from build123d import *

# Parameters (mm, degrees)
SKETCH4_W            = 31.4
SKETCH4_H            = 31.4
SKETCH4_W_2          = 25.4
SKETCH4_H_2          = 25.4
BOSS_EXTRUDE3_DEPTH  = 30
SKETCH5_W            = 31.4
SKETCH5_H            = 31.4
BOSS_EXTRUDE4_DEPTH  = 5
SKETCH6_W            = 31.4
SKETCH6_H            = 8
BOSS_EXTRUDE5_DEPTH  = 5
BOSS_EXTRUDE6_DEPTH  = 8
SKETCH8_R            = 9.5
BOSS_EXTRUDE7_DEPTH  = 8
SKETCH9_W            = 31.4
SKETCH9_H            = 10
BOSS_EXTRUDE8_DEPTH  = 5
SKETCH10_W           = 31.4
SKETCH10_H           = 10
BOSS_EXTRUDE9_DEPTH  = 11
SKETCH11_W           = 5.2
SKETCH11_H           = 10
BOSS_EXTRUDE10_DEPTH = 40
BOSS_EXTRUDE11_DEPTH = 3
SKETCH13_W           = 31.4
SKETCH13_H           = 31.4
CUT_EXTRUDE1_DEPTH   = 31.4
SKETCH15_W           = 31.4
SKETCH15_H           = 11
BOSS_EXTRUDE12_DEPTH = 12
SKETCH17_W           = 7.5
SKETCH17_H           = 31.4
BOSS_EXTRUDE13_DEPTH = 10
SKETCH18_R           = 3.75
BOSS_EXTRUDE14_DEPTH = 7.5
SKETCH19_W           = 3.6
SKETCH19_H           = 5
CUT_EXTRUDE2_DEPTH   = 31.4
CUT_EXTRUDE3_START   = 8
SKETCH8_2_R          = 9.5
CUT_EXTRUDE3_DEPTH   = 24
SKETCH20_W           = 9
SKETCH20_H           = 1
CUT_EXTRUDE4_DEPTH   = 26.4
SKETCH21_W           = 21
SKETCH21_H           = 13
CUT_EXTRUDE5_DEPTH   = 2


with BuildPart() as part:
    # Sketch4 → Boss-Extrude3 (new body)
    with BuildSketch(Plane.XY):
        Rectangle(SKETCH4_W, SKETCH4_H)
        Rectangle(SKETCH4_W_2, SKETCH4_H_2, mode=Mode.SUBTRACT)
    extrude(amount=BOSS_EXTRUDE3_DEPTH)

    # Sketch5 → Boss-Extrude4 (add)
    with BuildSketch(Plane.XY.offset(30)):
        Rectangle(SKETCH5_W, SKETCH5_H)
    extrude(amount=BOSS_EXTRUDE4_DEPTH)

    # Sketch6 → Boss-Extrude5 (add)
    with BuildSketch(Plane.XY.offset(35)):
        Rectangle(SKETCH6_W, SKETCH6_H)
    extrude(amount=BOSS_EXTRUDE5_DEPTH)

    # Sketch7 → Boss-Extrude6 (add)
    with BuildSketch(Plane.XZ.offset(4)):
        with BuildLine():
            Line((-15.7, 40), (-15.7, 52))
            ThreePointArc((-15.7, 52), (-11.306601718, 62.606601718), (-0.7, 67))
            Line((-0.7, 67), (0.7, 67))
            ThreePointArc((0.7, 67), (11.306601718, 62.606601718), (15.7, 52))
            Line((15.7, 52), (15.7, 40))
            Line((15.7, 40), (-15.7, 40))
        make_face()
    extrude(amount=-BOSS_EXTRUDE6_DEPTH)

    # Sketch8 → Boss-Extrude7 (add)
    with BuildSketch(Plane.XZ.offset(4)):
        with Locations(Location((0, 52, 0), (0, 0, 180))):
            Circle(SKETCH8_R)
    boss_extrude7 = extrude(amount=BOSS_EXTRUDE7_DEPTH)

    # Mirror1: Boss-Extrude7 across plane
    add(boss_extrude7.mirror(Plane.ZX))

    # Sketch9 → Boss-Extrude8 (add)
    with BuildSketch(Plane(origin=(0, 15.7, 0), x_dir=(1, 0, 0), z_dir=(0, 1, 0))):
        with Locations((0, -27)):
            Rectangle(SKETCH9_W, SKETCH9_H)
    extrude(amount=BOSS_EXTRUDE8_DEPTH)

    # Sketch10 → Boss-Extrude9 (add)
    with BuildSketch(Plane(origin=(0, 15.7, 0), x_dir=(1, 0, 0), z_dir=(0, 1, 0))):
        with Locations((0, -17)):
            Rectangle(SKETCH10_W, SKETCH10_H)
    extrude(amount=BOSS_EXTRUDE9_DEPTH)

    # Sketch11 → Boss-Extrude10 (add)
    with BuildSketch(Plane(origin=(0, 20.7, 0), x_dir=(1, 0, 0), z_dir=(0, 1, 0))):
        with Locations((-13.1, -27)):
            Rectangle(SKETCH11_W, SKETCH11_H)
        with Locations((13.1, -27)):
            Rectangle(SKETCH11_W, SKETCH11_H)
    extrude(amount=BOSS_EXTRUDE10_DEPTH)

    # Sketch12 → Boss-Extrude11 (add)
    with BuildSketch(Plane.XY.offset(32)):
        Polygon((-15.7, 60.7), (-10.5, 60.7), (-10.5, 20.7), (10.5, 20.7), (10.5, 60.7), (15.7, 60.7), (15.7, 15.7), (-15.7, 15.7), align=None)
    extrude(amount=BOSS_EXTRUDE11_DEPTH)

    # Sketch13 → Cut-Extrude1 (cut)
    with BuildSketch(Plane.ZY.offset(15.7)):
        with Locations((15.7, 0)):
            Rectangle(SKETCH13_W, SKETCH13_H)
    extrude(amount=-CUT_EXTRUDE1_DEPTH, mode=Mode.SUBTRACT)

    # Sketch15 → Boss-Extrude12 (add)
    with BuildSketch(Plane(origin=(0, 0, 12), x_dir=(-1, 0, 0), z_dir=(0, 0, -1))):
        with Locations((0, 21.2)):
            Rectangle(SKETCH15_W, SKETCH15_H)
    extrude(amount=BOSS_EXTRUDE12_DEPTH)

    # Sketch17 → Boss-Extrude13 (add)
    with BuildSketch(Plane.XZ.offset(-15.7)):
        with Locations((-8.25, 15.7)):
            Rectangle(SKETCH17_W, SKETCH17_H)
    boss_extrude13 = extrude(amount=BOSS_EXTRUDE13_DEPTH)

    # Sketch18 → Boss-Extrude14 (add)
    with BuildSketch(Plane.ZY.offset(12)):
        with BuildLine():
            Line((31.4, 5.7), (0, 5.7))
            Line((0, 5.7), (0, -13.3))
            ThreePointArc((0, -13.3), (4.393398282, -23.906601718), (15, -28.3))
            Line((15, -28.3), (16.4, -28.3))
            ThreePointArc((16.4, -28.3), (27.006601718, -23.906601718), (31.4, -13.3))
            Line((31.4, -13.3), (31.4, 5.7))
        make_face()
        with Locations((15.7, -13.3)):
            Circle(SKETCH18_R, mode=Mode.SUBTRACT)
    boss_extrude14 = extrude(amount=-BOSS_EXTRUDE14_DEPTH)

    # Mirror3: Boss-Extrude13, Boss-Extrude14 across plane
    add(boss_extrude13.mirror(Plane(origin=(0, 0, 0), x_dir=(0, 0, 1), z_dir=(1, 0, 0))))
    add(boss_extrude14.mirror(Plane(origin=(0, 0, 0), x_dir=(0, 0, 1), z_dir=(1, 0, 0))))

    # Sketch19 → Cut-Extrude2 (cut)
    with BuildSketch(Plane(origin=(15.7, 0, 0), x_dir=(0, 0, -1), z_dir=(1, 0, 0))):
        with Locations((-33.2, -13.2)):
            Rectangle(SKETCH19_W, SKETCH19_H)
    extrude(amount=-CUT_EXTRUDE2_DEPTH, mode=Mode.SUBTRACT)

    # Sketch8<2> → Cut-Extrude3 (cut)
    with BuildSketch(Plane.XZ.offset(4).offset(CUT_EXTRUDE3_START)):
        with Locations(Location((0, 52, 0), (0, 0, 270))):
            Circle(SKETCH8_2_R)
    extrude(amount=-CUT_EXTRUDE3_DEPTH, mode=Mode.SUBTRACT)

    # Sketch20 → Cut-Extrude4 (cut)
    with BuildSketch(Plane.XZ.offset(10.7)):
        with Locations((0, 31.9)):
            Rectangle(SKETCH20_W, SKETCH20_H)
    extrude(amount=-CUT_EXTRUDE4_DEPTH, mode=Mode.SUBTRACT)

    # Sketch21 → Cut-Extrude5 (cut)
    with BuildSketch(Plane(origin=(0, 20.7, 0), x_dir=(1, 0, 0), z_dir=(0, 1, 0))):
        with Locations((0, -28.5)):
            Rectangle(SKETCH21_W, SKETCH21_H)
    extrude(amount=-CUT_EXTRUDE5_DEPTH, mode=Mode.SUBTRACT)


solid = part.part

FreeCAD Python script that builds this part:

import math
import FreeCAD as App
import Part
import Sketcher

V = App.Vector


def add_polygon(sketch, points):
    """Adds a closed chain of lines whose ends are joined by coincident constraints."""
    first, n = sketch.GeometryCount, len(points)
    for a, b in zip(points, points[1:] + points[:1]):
        sketch.addGeometry(Part.LineSegment(App.Vector(*a, 0), App.Vector(*b, 0)), False)
    for i in range(n):
        sketch.addConstraint(Sketcher.Constraint("Coincident", first + i, 2, first + (i + 1) % n, 1))

doc = App.newDocument("Part")
body = doc.addObject("PartDesign::Body", "Body")

sketch1 = body.newObject("Sketcher::SketchObject", "Sketch")
sketch1.AttachmentSupport = (doc.getObject("XY_Plane"), [""])
sketch1.MapMode = "FlatFace"
add_polygon(sketch1, [(-16, 16), (-16, -16), (16, -16), (16, 16)])
add_polygon(sketch1, [(13, -13), (-13, -13), (-13, 13), (13, 13)])
sketch1.addConstraint(Sketcher.Constraint("Vertical", 0))
sketch1.addConstraint(Sketcher.Constraint("Horizontal", 1))
sketch1.addConstraint(Sketcher.Constraint("Vertical", 2))
sketch1.addConstraint(Sketcher.Constraint("Horizontal", 3))
sketch1.addConstraint(Sketcher.Constraint("Horizontal", 4))
sketch1.addConstraint(Sketcher.Constraint("Vertical", 5))
sketch1.addConstraint(Sketcher.Constraint("Horizontal", 6))
sketch1.addConstraint(Sketcher.Constraint("Vertical", 7))
sketch1.addConstraint(Sketcher.Constraint("Symmetric", 0, 2, 2, 2, -1, 1))
sketch1.addConstraint(Sketcher.Constraint("Symmetric", 4, 2, 6, 2, -1, 1))
sketch1.addConstraint(Sketcher.Constraint("Equal", 3, 0))
sketch1.addConstraint(Sketcher.Constraint("Equal", 6, 5))
sketch1.addConstraint(Sketcher.Constraint("DistanceX", 1, 1, 1, 2, 31.4))
sketch1.addConstraint(Sketcher.Constraint("DistanceX", 4, 2, 4, 1, 25.4))
pad1 = body.newObject("PartDesign::Pad", "Pad")
pad1.Profile = sketch1
pad1.Length = 30

sketch2 = body.newObject("Sketcher::SketchObject", "Sketch001")
sketch2.AttachmentSupport = (doc.getObject("XY_Plane"), [""])
sketch2.MapMode = "FlatFace"
sketch2.AttachmentOffset = App.Placement(V(0, 0, 30), App.Rotation())
add_polygon(sketch2, [(-16, 16), (-16, -16), (16, -16), (16, 16)])
sketch2.addConstraint(Sketcher.Constraint("Vertical", 0))
sketch2.addConstraint(Sketcher.Constraint("Horizontal", 1))
sketch2.addConstraint(Sketcher.Constraint("Vertical", 2))
sketch2.addConstraint(Sketcher.Constraint("Horizontal", 3))
sketch2.addConstraint(Sketcher.Constraint("Symmetric", 0, 2, 2, 2, -1, 1))
sketch2.addConstraint(Sketcher.Constraint("Equal", 3, 0))
sketch2.addConstraint(Sketcher.Constraint("DistanceX", 1, 1, 1, 2, 31.4))
pad2 = body.newObject("PartDesign::Pad", "Pad001")
pad2.Profile = sketch2
pad2.Length = 5

sketch3 = body.newObject("Sketcher::SketchObject", "Sketch002")
sketch3.AttachmentSupport = (doc.getObject("XY_Plane"), [""])
sketch3.MapMode = "FlatFace"
sketch3.AttachmentOffset = App.Placement(V(0, 0, 35), App.Rotation())
add_polygon(sketch3, [(-16, 4), (-16, -4), (16, -4), (16, 4)])
sketch3.addConstraint(Sketcher.Constraint("Vertical", 0))
sketch3.addConstraint(Sketcher.Constraint("Horizontal", 1))
sketch3.addConstraint(Sketcher.Constraint("Vertical", 2))
sketch3.addConstraint(Sketcher.Constraint("Horizontal", 3))
sketch3.addConstraint(Sketcher.Constraint("Symmetric", 0, 2, 2, 2, -1, 1))
sketch3.addConstraint(Sketcher.Constraint("DistanceY", 0, 2, 0, 1, 8.0))
sketch3.addConstraint(Sketcher.Constraint("DistanceX", 1, 1, 1, 2, 31.4))
pad3 = body.newObject("PartDesign::Pad", "Pad002")
pad3.Profile = sketch3
pad3.Length = 5

sketch4 = body.newObject("Sketcher::SketchObject", "Sketch003")
sketch4.AttachmentSupport = (doc.getObject("XZ_Plane"), [""])
sketch4.MapMode = "FlatFace"
sketch4.AttachmentOffset = App.Placement(V(0, 0, 4), App.Rotation())
sketch4.addGeometry(Part.LineSegment(V(-15.7, 52, 0), V(-15.7, 40, 0)), False)
sketch4.addGeometry(Part.LineSegment(V(-15.7, 40, 0), V(15.7, 40, 0)), False)
sketch4.addGeometry(Part.LineSegment(V(15.7, 40, 0), V(15.7, 52, 0)), False)
sketch4.addGeometry(Part.ArcOfCircle(Part.Circle(V(0.7, 52, 0), V(0, 0, 1), 15), math.radians(0), math.radians(90)), False)
sketch4.addGeometry(Part.LineSegment(V(0.7, 67, 0), V(-0.7, 67, 0)), False)
sketch4.addGeometry(Part.ArcOfCircle(Part.Circle(V(-0.7, 52, 0), V(0, 0, 1), 15), math.radians(90), math.radians(180)), False)
sketch4.addConstraint(Sketcher.Constraint("Coincident", 0, 2, 1, 1))
sketch4.addConstraint(Sketcher.Constraint("Coincident", 1, 2, 2, 1))
sketch4.addConstraint(Sketcher.Constraint("Tangent", 2, 2, 3, 1))
sketch4.addConstraint(Sketcher.Constraint("Tangent", 3, 2, 4, 1))
sketch4.addConstraint(Sketcher.Constraint("Tangent", 4, 2, 5, 1))
sketch4.addConstraint(Sketcher.Constraint("Tangent", 5, 2, 0, 1))
sketch4.addConstraint(Sketcher.Constraint("Vertical", 0))
sketch4.addConstraint(Sketcher.Constraint("Horizontal", 1))
sketch4.addConstraint(Sketcher.Constraint("Vertical", 2))
sketch4.addConstraint(Sketcher.Constraint("Horizontal", 4))
sketch4.addConstraint(Sketcher.Constraint("Equal", 3, 5))
sketch4.addConstraint(Sketcher.Constraint("Radius", 3, 15.0))
sketch4.addConstraint(Sketcher.Constraint("DistanceY", 0, 2, 0, 1, 12.0))
sketch4.addConstraint(Sketcher.Constraint("DistanceX", 1, 1, 1, 2, 31.4))
sketch4.addConstraint(Sketcher.Constraint("DistanceY", -1, 1, 3, 3, 52.0))
sketch4.addConstraint(Sketcher.Constraint("DistanceX", -1, 1, 3, 3, 0.7))
pad4 = body.newObject("PartDesign::Pad", "Pad003")
pad4.Profile = sketch4
pad4.Length = 8
pad4.Reversed = True

sketch5 = body.newObject("Sketcher::SketchObject", "Sketch004")
sketch5.AttachmentSupport = (doc.getObject("XZ_Plane"), [""])
sketch5.MapMode = "FlatFace"
sketch5.AttachmentOffset = App.Placement(V(0, 0, 4), App.Rotation())
sketch5.addGeometry(Part.Circle(V(0, 52, 0), V(0, 0, 1), 10), False)
sketch5.addConstraint(Sketcher.Constraint("PointOnObject", 0, 3, -2))
sketch5.addConstraint(Sketcher.Constraint("Diameter", 0, 19.0))
sketch5.addConstraint(Sketcher.Constraint("DistanceY", -1, 1, 0, 3, 52.0))
pad5 = body.newObject("PartDesign::Pad", "Pad004")
pad5.Profile = sketch5
pad5.Length = 8
doc.recompute()

mirrored = body.newObject("PartDesign::Mirrored", "Mirrored")
mirrored.Originals = [pad5]
mirrored.MirrorPlane = (doc.getObject("XZ_Plane"), [""])
body.Tip = mirrored

sketch6 = body.newObject("Sketcher::SketchObject", "Sketch005")
sketch6.AttachmentSupport = (doc.getObject("XZ_Plane"), [""])
sketch6.MapMode = "FlatFace"
sketch6.AttachmentOffset = App.Placement(V(0, 0, -15.7), App.Rotation())
add_polygon(sketch6, [(-16, 22), (-16, 32), (16, 32), (16, 22)])
sketch6.addConstraint(Sketcher.Constraint("Vertical", 0))
sketch6.addConstraint(Sketcher.Constraint("Horizontal", 1))
sketch6.addConstraint(Sketcher.Constraint("Vertical", 2))
sketch6.addConstraint(Sketcher.Constraint("Horizontal", 3))
sketch6.addConstraint(Sketcher.Constraint("DistanceY", 0, 1, 0, 2, 10.0))
sketch6.addConstraint(Sketcher.Constraint("DistanceX", 1, 1, 1, 2, 31.4))
sketch6.addConstraint(Sketcher.Constraint("DistanceY", -1, 1, 0, 2, 32.0))
sketch6.addConstraint(Sketcher.Constraint("DistanceX", 0, 2, -1, 1, 15.7))
pad6 = body.newObject("PartDesign::Pad", "Pad005")
pad6.Profile = sketch6
pad6.Length = 5
pad6.Reversed = True

sketch7 = body.newObject("Sketcher::SketchObject", "Sketch006")
sketch7.AttachmentSupport = (doc.getObject("XZ_Plane"), [""])
sketch7.MapMode = "FlatFace"
sketch7.AttachmentOffset = App.Placement(V(0, 0, -15.7), App.Rotation())
add_polygon(sketch7, [(-16, 12), (-16, 22), (16, 22), (16, 12)])
sketch7.addConstraint(Sketcher.Constraint("Vertical", 0))
sketch7.addConstraint(Sketcher.Constraint("Horizontal", 1))
sketch7.addConstraint(Sketcher.Constraint("Vertical", 2))
sketch7.addConstraint(Sketcher.Constraint("Horizontal", 3))
sketch7.addConstraint(Sketcher.Constraint("DistanceY", 0, 1, 0, 2, 10.0))
sketch7.addConstraint(Sketcher.Constraint("DistanceX", 1, 1, 1, 2, 31.4))
sketch7.addConstraint(Sketcher.Constraint("DistanceY", -1, 1, 0, 2, 22.0))
sketch7.addConstraint(Sketcher.Constraint("DistanceX", 0, 2, -1, 1, 15.7))
pad7 = body.newObject("PartDesign::Pad", "Pad006")
pad7.Profile = sketch7
pad7.Length = 11
pad7.Reversed = True

sketch8 = body.newObject("Sketcher::SketchObject", "Sketch007")
sketch8.AttachmentSupport = (doc.getObject("XZ_Plane"), [""])
sketch8.MapMode = "FlatFace"
sketch8.AttachmentOffset = App.Placement(V(0, 0, -20.7), App.Rotation())
add_polygon(sketch8, [(-16, 22), (-16, 32), (-10, 32), (-10, 22)])
add_polygon(sketch8, [(10, 22), (10, 32), (16, 32), (16, 22)])
sketch8.addConstraint(Sketcher.Constraint("Vertical", 0))
sketch8.addConstraint(Sketcher.Constraint("Horizontal", 1))
sketch8.addConstraint(Sketcher.Constraint("Vertical", 2))
sketch8.addConstraint(Sketcher.Constraint("Horizontal", 3))
sketch8.addConstraint(Sketcher.Constraint("Vertical", 4))
sketch8.addConstraint(Sketcher.Constraint("Horizontal", 5))
sketch8.addConstraint(Sketcher.Constraint("Vertical", 6))
sketch8.addConstraint(Sketcher.Constraint("Horizontal", 7))
sketch8.addConstraint(Sketcher.Constraint("Symmetric", 1, 2, 4, 2, -2))
sketch8.addConstraint(Sketcher.Constraint("Symmetric", 3, 2, 6, 2, -2))
sketch8.addConstraint(Sketcher.Constraint("DistanceY", 0, 1, 0, 2, 10.0))
sketch8.addConstraint(Sketcher.Constraint("DistanceX", 1, 1, 1, 2, 5.2))
sketch8.addConstraint(Sketcher.Constraint("DistanceY", -1, 1, 0, 2, 32.0))
sketch8.addConstraint(Sketcher.Constraint("DistanceX", 1, 2, 4, 2, 21.0))
pad8 = body.newObject("PartDesign::Pad", "Pad007")
pad8.Profile = sketch8
pad8.Length = 40
pad8.Reversed = True

sketch9 = body.newObject("Sketcher::SketchObject", "Sketch008")
sketch9.AttachmentSupport = (doc.getObject("XY_Plane"), [""])
sketch9.MapMode = "FlatFace"
sketch9.AttachmentOffset = App.Placement(V(0, 0, 32), App.Rotation())
add_polygon(sketch9, [(-10, 61), (-16, 61), (-16, 16), (16, 16), (16, 61), (10, 61), (10, 21), (-10, 21)])
sketch9.addConstraint(Sketcher.Constraint("Horizontal", 0))
sketch9.addConstraint(Sketcher.Constraint("Vertical", 1))
sketch9.addConstraint(Sketcher.Constraint("Horizontal", 2))
sketch9.addConstraint(Sketcher.Constraint("Vertical", 3))
sketch9.addConstraint(Sketcher.Constraint("Horizontal", 4))
sketch9.addConstraint(Sketcher.Constraint("Vertical", 5))
sketch9.addConstraint(Sketcher.Constraint("Horizontal", 6))
sketch9.addConstraint(Sketcher.Constraint("Vertical", 7))
sketch9.addConstraint(Sketcher.Constraint("Symmetric", 0, 2, 3, 2, -2))
sketch9.addConstraint(Sketcher.Constraint("Equal", 0, 4))
sketch9.addConstraint(Sketcher.Constraint("DistanceX", 6, 2, 6, 1, 21.0))
sketch9.addConstraint(Sketcher.Constraint("DistanceY", 1, 2, 1, 1, 45.0))
sketch9.addConstraint(Sketcher.Constraint("DistanceY", 5, 2, 5, 1, 40.0))
sketch9.addConstraint(Sketcher.Constraint("DistanceX", 0, 2, 0, 1, 5.2))
sketch9.addConstraint(Sketcher.Constraint("DistanceY", -1, 1, 0, 2, 60.7))
pad9 = body.newObject("PartDesign::Pad", "Pad008")
pad9.Profile = sketch9
pad9.Length = 3

sketch10 = body.newObject("Sketcher::SketchObject", "Sketch009")
sketch10.AttachmentSupport = (doc.getObject("YZ_Plane"), [""])
sketch10.MapMode = "FlatFace"
sketch10.AttachmentOffset = App.Placement(V(0, 0, -15.7), App.Rotation())
add_polygon(sketch10, [(16, 0), (-16, 0), (-16, 31), (16, 31)])
sketch10.addConstraint(Sketcher.Constraint("Horizontal", 0))
sketch10.addConstraint(Sketcher.Constraint("Vertical", 1))
sketch10.addConstraint(Sketcher.Constraint("Horizontal", 2))
sketch10.addConstraint(Sketcher.Constraint("Vertical", 3))
sketch10.addConstraint(Sketcher.Constraint("Symmetric", 0, 2, 3, 2, -1, 1))
sketch10.addConstraint(Sketcher.Constraint("Equal", 2, 1))
sketch10.addConstraint(Sketcher.Constraint("DistanceX", 0, 2, 0, 1, 31.4))
pocket1 = body.newObject("PartDesign::Pocket", "Pocket")
pocket1.Profile = sketch10
pocket1.Length = 31.4
pocket1.Reversed = True

sketch11 = body.newObject("Sketcher::SketchObject", "Sketch010")
sketch11.AttachmentSupport = (doc.getObject("XY_Plane"), [""])
sketch11.MapMode = "FlatFace"
sketch11.AttachmentOffset = App.Placement(V(0, 0, 12), App.Rotation())
add_polygon(sketch11, [(16, 27), (16, 16), (-16, 16), (-16, 27)])
sketch11.addConstraint(Sketcher.Constraint("Vertical", 0))
sketch11.addConstraint(Sketcher.Constraint("Horizontal", 1))
sketch11.addConstraint(Sketcher.Constraint("Vertical", 2))
sketch11.addConstraint(Sketcher.Constraint("Horizontal", 3))
sketch11.addConstraint(Sketcher.Constraint("DistanceY", 0, 2, 0, 1, 11.0))
sketch11.addConstraint(Sketcher.Constraint("DistanceX", 1, 2, 1, 1, 31.4))
sketch11.addConstraint(Sketcher.Constraint("DistanceX", -1, 1, 0, 2, 15.7))
sketch11.addConstraint(Sketcher.Constraint("DistanceY", -1, 1, 0, 2, 15.7))
pad10 = body.newObject("PartDesign::Pad", "Pad009")
pad10.Profile = sketch11
pad10.Length = 12
pad10.Reversed = True

sketch12 = body.newObject("Sketcher::SketchObject", "Sketch011")
sketch12.AttachmentSupport = (doc.getObject("XZ_Plane"), [""])
sketch12.MapMode = "FlatFace"
sketch12.AttachmentOffset = App.Placement(V(0, 0, -15.7), App.Rotation())
add_polygon(sketch12, [(-12, 31), (-12, 0), (-4, 0), (-4, 31)])
sketch12.addConstraint(Sketcher.Constraint("Vertical", 0))
sketch12.addConstraint(Sketcher.Constraint("Horizontal", 1))
sketch12.addConstraint(Sketcher.Constraint("Vertical", 2))
sketch12.addConstraint(Sketcher.Constraint("Horizontal", 3))
sketch12.addConstraint(Sketcher.Constraint("PointOnObject", 0, 2, -1))
sketch12.addConstraint(Sketcher.Constraint("DistanceX", 1, 1, 1, 2, 7.5))
sketch12.addConstraint(Sketcher.Constraint("DistanceY", 0, 2, 0, 1, 31.4))
sketch12.addConstraint(Sketcher.Constraint("DistanceX", 0, 2, -1, 1, 12.0))
pad11 = body.newObject("PartDesign::Pad", "Pad010")
pad11.Profile = sketch12
pad11.Length = 10

sketch13 = body.newObject("Sketcher::SketchObject", "Sketch012")
sketch13.AttachmentSupport = (doc.getObject("YZ_Plane"), [""])
sketch13.MapMode = "FlatFace"
sketch13.AttachmentOffset = App.Placement(V(0, 0, -12), App.Rotation())
sketch13.addGeometry(Part.LineSegment(V(5.7, 31.4, 0), V(5.7, 0, 0)), False)
sketch13.addGeometry(Part.LineSegment(V(5.7, 0, 0), V(-13.3, 0, 0)), False)
sketch13.addGeometry(Part.ArcOfCircle(Part.Circle(V(-13.3, 15, 0), V(0, 0, 1), 15), math.radians(180), math.radians(270)), False)
sketch13.addGeometry(Part.LineSegment(V(-28.3, 15, 0), V(-28.3, 16.4, 0)), False)
sketch13.addGeometry(Part.ArcOfCircle(Part.Circle(V(-13.3, 16.4, 0), V(0, 0, 1), 15), math.radians(90), math.radians(180)), False)
sketch13.addGeometry(Part.LineSegment(V(-13.3, 31.4, 0), V(5.7, 31.4, 0)), False)
sketch13.addGeometry(Part.Circle(V(-13.3, 15.7, 0), V(0, 0, 1), 3.8), False)
sketch13.addConstraint(Sketcher.Constraint("Coincident", 0, 2, 1, 1))
sketch13.addConstraint(Sketcher.Constraint("Tangent", 1, 2, 2, 2))
sketch13.addConstraint(Sketcher.Constraint("Tangent", 2, 1, 3, 1))
sketch13.addConstraint(Sketcher.Constraint("Tangent", 3, 2, 4, 2))
sketch13.addConstraint(Sketcher.Constraint("Tangent", 4, 1, 5, 1))
sketch13.addConstraint(Sketcher.Constraint("Coincident", 5, 2, 0, 1))
sketch13.addConstraint(Sketcher.Constraint("Vertical", 0))
sketch13.addConstraint(Sketcher.Constraint("Horizontal", 1))
sketch13.addConstraint(Sketcher.Constraint("Vertical", 3))
sketch13.addConstraint(Sketcher.Constraint("Horizontal", 5))
sketch13.addConstraint(Sketcher.Constraint("Equal", 2, 4))
sketch13.addConstraint(Sketcher.Constraint("PointOnObject", 0, 2, -1))
sketch13.addConstraint(Sketcher.Constraint("Vertical", 4, 3, 6, 3))
sketch13.addConstraint(Sketcher.Constraint("Radius", 2, 15.0))
sketch13.addConstraint(Sketcher.Constraint("Diameter", 6, 7.5))
sketch13.addConstraint(Sketcher.Constraint("DistanceX", 1, 2, 1, 1, 19.0))
sketch13.addConstraint(Sketcher.Constraint("DistanceY", 0, 2, 0, 1, 31.4))
sketch13.addConstraint(Sketcher.Constraint("DistanceX", 2, 3, -1, 1, 13.3))
sketch13.addConstraint(Sketcher.Constraint("DistanceY", -1, 1, 6, 3, 15.7))
pad12 = body.newObject("PartDesign::Pad", "Pad011")
pad12.Profile = sketch13
pad12.Length = 7.5
doc.recompute()

mirrored2 = body.newObject("PartDesign::Mirrored", "Mirrored001")
mirrored2.Originals = [pad11, pad12]
mirrored2.MirrorPlane = (doc.getObject("YZ_Plane"), [""])
body.Tip = mirrored2

sketch14 = body.newObject("Sketcher::SketchObject", "Sketch013")
sketch14.AttachmentSupport = (doc.getObject("YZ_Plane"), [""])
sketch14.MapMode = "FlatFace"
sketch14.AttachmentOffset = App.Placement(V(0, 0, 15.7), App.Rotation())
add_polygon(sketch14, [(-10.7, 35), (-15.7, 35), (-15.7, 31.4), (-10.7, 31.4)])
sketch14.addConstraint(Sketcher.Constraint("Horizontal", 0))
sketch14.addConstraint(Sketcher.Constraint("Vertical", 1))
sketch14.addConstraint(Sketcher.Constraint("Horizontal", 2))
sketch14.addConstraint(Sketcher.Constraint("Vertical", 3))
sketch14.addConstraint(Sketcher.Constraint("DistanceX", 0, 2, 0, 1, 5.0))
sketch14.addConstraint(Sketcher.Constraint("DistanceY", 1, 2, 1, 1, 3.6))
sketch14.addConstraint(Sketcher.Constraint("DistanceY", -1, 1, 0, 2, 35.0))
sketch14.addConstraint(Sketcher.Constraint("DistanceX", 0, 2, -1, 1, 15.7))
pocket2 = body.newObject("PartDesign::Pocket", "Pocket001")
pocket2.Profile = sketch14
pocket2.Length = 31.4

sketch15 = body.newObject("Sketcher::SketchObject", "Sketch014")
sketch15.AttachmentSupport = (doc.getObject("XZ_Plane"), [""])
sketch15.MapMode = "FlatFace"
sketch15.AttachmentOffset = App.Placement(V(0, 0, 12), App.Rotation())
sketch15.addGeometry(Part.Circle(V(0, 52, 0), V(0, 0, 1), 10), False)
sketch15.addConstraint(Sketcher.Constraint("PointOnObject", 0, 3, -2))
sketch15.addConstraint(Sketcher.Constraint("Diameter", 0, 19.0))
sketch15.addConstraint(Sketcher.Constraint("DistanceY", -1, 1, 0, 3, 52.0))
pocket3 = body.newObject("PartDesign::Pocket", "Pocket002")
pocket3.Profile = sketch15
pocket3.Length = 24

sketch16 = body.newObject("Sketcher::SketchObject", "Sketch015")
sketch16.AttachmentSupport = (doc.getObject("XZ_Plane"), [""])
sketch16.MapMode = "FlatFace"
sketch16.AttachmentOffset = App.Placement(V(0, 0, 10.7), App.Rotation())
add_polygon(sketch16, [(-4.5, 32.4), (-4.5, 31.4), (4.5, 31.4), (4.5, 32.4)])
sketch16.addConstraint(Sketcher.Constraint("Vertical", 0))
sketch16.addConstraint(Sketcher.Constraint("Horizontal", 1))
sketch16.addConstraint(Sketcher.Constraint("Vertical", 2))
sketch16.addConstraint(Sketcher.Constraint("Horizontal", 3))
sketch16.addConstraint(Sketcher.Constraint("DistanceX", 1, 1, 1, 2, 9.0))
sketch16.addConstraint(Sketcher.Constraint("DistanceY", 0, 2, 0, 1, 1.0))
sketch16.addConstraint(Sketcher.Constraint("DistanceX", 0, 2, -1, 1, 4.5))
sketch16.addConstraint(Sketcher.Constraint("DistanceY", -1, 1, 0, 2, 31.4))
pocket4 = body.newObject("PartDesign::Pocket", "Pocket003")
pocket4.Profile = sketch16
pocket4.Length = 26.4

sketch17 = body.newObject("Sketcher::SketchObject", "Sketch016")
sketch17.AttachmentSupport = (doc.getObject("XZ_Plane"), [""])
sketch17.MapMode = "FlatFace"
sketch17.AttachmentOffset = App.Placement(V(0, 0, -20.7), App.Rotation())
add_polygon(sketch17, [(-10, 22), (-10, 35), (10, 35), (10, 22)])
sketch17.addConstraint(Sketcher.Constraint("Vertical", 0))
sketch17.addConstraint(Sketcher.Constraint("Horizontal", 1))
sketch17.addConstraint(Sketcher.Constraint("Vertical", 2))
sketch17.addConstraint(Sketcher.Constraint("Horizontal", 3))
sketch17.addConstraint(Sketcher.Constraint("DistanceX", 1, 1, 1, 2, 21.0))
sketch17.addConstraint(Sketcher.Constraint("DistanceY", 0, 1, 0, 2, 13.0))
sketch17.addConstraint(Sketcher.Constraint("DistanceY", -1, 1, 0, 2, 35.0))
sketch17.addConstraint(Sketcher.Constraint("DistanceX", 0, 2, -1, 1, 10.5))
pocket5 = body.newObject("PartDesign::Pocket", "Pocket004")
pocket5.Profile = sketch17
pocket5.Length = 2
pocket5.Reversed = True

doc.recompute()
